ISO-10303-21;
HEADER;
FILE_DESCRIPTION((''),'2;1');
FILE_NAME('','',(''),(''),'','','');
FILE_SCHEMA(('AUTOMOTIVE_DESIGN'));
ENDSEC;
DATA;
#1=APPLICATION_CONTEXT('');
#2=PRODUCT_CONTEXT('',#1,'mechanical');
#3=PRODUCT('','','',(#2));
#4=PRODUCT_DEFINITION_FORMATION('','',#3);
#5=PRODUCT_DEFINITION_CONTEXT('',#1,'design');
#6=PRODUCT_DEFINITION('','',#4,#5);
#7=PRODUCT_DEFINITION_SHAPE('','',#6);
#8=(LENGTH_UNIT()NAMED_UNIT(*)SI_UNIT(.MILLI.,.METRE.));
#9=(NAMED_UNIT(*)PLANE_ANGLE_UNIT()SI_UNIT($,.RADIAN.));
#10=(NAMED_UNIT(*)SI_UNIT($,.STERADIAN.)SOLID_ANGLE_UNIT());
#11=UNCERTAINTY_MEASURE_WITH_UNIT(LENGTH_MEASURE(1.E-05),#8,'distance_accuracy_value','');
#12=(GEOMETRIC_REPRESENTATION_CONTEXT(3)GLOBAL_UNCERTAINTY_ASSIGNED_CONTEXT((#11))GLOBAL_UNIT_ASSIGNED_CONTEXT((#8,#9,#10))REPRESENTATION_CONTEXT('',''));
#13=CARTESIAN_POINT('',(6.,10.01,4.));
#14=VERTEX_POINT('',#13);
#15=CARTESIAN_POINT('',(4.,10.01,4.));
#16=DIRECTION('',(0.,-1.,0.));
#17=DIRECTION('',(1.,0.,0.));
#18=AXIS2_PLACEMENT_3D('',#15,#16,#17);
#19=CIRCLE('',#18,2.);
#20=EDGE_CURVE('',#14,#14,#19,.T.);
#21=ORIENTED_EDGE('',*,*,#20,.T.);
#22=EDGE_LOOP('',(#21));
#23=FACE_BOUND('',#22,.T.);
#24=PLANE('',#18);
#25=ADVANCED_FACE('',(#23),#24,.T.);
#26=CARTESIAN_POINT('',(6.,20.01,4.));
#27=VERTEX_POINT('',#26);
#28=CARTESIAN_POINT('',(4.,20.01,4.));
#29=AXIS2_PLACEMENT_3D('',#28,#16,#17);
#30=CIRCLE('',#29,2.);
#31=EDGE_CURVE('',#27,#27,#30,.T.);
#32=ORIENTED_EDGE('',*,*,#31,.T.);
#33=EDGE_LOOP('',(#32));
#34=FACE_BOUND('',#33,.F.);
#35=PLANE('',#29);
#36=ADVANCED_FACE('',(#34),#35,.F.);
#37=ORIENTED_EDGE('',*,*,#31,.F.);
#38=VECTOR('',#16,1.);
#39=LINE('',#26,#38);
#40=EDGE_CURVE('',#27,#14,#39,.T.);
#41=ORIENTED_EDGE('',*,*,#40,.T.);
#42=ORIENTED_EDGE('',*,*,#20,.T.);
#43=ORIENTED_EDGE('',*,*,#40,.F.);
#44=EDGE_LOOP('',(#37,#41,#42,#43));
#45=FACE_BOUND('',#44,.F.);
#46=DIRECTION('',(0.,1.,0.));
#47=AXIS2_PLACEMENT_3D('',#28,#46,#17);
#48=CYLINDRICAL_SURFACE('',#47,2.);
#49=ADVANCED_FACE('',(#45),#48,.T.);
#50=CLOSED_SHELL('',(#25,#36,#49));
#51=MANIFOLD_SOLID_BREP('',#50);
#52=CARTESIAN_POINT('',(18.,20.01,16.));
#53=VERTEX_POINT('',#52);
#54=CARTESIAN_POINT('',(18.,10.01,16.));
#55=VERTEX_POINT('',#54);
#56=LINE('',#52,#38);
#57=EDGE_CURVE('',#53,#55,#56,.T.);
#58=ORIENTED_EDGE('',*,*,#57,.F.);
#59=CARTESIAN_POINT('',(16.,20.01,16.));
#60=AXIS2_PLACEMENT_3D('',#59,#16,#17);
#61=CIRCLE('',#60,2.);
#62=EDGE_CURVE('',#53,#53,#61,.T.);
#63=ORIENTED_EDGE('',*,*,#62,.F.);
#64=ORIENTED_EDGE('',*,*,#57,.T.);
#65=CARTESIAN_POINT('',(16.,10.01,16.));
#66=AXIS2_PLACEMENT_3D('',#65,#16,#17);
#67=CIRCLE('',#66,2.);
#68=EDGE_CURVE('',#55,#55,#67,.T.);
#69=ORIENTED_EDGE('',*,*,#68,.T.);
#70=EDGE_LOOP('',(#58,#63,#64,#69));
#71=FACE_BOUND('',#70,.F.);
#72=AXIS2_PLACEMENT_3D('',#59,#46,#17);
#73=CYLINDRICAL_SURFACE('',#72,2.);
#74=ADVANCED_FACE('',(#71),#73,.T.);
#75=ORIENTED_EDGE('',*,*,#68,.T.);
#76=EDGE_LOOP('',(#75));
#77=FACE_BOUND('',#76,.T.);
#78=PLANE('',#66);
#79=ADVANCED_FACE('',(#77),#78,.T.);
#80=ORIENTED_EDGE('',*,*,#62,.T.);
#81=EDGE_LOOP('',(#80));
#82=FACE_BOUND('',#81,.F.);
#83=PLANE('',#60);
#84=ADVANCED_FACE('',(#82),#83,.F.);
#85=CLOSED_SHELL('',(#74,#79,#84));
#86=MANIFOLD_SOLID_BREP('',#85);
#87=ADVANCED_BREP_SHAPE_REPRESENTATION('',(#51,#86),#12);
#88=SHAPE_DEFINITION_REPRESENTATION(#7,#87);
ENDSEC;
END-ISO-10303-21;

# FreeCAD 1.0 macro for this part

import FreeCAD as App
import Part
import Sketcher

doc = App.newDocument("Part")
body = doc.addObject("PartDesign::Body", "Body")

# Sketch on XZ plane
sketch1 = doc.addObject("Sketcher::SketchObject", "Sketch")
body.addObject(sketch1)
sketch1.AttachmentSupport = (doc.XZ_Plane, [""])
sketch1.MapMode = "FlatFace"
sketch1.AttachmentOffset = App.Placement(App.Vector(0, 0, -20.01), App.Rotation())
sketch1.addGeometry(Part.Circle(App.Vector(4, 4, 0), App.Vector(0, 0, 1), 2), False)
sketch1.addConstraint(Sketcher.Constraint("Diameter", 0, 4.0))
sketch1.addConstraint(Sketcher.Constraint("DistanceX", -1, 1, 0, 3, 4.0))
sketch1.addConstraint(Sketcher.Constraint("DistanceY", -1, 1, 0, 3, 4.0))
pad1 = doc.addObject("PartDesign::Pad", "Pad")
body.addObject(pad1)
pad1.Profile = sketch1
pad1.Length = 10
body2 = doc.addObject("PartDesign::Body", "Body001")
body2.AllowCompound = True

# Sketch on XZ plane
sketch2 = doc.addObject("Sketcher::SketchObject", "Sketch001")
body2.addObject(sketch2)
sketch2.AttachmentSupport = (doc.getObject("XZ_Plane001"), [""])
sketch2.MapMode = "FlatFace"
sketch2.AttachmentOffset = App.Placement(App.Vector(0, 0, -20.01), App.Rotation())
sketch2.addGeometry(Part.Circle(App.Vector(16, 16, 0), App.Vector(0, 0, 1), 2), False)
sketch2.addConstraint(Sketcher.Constraint("Diameter", 0, 4.0))
sketch2.addConstraint(Sketcher.Constraint("DistanceX", -1, 1, 0, 3, 16.0))
sketch2.addConstraint(Sketcher.Constraint("DistanceY", -1, 1, 0, 3, 16.0))
pad2 = doc.addObject("PartDesign::Pad", "Pad001")
body2.addObject(pad2)
pad2.Profile = sketch2
pad2.Length = 10
doc.recompute()

boolean = doc.addObject("PartDesign::Boolean", "Boolean")
body2.addObject(boolean)
boolean.Type = "Fuse"
boolean.addObjects([body])

doc.recompute()
